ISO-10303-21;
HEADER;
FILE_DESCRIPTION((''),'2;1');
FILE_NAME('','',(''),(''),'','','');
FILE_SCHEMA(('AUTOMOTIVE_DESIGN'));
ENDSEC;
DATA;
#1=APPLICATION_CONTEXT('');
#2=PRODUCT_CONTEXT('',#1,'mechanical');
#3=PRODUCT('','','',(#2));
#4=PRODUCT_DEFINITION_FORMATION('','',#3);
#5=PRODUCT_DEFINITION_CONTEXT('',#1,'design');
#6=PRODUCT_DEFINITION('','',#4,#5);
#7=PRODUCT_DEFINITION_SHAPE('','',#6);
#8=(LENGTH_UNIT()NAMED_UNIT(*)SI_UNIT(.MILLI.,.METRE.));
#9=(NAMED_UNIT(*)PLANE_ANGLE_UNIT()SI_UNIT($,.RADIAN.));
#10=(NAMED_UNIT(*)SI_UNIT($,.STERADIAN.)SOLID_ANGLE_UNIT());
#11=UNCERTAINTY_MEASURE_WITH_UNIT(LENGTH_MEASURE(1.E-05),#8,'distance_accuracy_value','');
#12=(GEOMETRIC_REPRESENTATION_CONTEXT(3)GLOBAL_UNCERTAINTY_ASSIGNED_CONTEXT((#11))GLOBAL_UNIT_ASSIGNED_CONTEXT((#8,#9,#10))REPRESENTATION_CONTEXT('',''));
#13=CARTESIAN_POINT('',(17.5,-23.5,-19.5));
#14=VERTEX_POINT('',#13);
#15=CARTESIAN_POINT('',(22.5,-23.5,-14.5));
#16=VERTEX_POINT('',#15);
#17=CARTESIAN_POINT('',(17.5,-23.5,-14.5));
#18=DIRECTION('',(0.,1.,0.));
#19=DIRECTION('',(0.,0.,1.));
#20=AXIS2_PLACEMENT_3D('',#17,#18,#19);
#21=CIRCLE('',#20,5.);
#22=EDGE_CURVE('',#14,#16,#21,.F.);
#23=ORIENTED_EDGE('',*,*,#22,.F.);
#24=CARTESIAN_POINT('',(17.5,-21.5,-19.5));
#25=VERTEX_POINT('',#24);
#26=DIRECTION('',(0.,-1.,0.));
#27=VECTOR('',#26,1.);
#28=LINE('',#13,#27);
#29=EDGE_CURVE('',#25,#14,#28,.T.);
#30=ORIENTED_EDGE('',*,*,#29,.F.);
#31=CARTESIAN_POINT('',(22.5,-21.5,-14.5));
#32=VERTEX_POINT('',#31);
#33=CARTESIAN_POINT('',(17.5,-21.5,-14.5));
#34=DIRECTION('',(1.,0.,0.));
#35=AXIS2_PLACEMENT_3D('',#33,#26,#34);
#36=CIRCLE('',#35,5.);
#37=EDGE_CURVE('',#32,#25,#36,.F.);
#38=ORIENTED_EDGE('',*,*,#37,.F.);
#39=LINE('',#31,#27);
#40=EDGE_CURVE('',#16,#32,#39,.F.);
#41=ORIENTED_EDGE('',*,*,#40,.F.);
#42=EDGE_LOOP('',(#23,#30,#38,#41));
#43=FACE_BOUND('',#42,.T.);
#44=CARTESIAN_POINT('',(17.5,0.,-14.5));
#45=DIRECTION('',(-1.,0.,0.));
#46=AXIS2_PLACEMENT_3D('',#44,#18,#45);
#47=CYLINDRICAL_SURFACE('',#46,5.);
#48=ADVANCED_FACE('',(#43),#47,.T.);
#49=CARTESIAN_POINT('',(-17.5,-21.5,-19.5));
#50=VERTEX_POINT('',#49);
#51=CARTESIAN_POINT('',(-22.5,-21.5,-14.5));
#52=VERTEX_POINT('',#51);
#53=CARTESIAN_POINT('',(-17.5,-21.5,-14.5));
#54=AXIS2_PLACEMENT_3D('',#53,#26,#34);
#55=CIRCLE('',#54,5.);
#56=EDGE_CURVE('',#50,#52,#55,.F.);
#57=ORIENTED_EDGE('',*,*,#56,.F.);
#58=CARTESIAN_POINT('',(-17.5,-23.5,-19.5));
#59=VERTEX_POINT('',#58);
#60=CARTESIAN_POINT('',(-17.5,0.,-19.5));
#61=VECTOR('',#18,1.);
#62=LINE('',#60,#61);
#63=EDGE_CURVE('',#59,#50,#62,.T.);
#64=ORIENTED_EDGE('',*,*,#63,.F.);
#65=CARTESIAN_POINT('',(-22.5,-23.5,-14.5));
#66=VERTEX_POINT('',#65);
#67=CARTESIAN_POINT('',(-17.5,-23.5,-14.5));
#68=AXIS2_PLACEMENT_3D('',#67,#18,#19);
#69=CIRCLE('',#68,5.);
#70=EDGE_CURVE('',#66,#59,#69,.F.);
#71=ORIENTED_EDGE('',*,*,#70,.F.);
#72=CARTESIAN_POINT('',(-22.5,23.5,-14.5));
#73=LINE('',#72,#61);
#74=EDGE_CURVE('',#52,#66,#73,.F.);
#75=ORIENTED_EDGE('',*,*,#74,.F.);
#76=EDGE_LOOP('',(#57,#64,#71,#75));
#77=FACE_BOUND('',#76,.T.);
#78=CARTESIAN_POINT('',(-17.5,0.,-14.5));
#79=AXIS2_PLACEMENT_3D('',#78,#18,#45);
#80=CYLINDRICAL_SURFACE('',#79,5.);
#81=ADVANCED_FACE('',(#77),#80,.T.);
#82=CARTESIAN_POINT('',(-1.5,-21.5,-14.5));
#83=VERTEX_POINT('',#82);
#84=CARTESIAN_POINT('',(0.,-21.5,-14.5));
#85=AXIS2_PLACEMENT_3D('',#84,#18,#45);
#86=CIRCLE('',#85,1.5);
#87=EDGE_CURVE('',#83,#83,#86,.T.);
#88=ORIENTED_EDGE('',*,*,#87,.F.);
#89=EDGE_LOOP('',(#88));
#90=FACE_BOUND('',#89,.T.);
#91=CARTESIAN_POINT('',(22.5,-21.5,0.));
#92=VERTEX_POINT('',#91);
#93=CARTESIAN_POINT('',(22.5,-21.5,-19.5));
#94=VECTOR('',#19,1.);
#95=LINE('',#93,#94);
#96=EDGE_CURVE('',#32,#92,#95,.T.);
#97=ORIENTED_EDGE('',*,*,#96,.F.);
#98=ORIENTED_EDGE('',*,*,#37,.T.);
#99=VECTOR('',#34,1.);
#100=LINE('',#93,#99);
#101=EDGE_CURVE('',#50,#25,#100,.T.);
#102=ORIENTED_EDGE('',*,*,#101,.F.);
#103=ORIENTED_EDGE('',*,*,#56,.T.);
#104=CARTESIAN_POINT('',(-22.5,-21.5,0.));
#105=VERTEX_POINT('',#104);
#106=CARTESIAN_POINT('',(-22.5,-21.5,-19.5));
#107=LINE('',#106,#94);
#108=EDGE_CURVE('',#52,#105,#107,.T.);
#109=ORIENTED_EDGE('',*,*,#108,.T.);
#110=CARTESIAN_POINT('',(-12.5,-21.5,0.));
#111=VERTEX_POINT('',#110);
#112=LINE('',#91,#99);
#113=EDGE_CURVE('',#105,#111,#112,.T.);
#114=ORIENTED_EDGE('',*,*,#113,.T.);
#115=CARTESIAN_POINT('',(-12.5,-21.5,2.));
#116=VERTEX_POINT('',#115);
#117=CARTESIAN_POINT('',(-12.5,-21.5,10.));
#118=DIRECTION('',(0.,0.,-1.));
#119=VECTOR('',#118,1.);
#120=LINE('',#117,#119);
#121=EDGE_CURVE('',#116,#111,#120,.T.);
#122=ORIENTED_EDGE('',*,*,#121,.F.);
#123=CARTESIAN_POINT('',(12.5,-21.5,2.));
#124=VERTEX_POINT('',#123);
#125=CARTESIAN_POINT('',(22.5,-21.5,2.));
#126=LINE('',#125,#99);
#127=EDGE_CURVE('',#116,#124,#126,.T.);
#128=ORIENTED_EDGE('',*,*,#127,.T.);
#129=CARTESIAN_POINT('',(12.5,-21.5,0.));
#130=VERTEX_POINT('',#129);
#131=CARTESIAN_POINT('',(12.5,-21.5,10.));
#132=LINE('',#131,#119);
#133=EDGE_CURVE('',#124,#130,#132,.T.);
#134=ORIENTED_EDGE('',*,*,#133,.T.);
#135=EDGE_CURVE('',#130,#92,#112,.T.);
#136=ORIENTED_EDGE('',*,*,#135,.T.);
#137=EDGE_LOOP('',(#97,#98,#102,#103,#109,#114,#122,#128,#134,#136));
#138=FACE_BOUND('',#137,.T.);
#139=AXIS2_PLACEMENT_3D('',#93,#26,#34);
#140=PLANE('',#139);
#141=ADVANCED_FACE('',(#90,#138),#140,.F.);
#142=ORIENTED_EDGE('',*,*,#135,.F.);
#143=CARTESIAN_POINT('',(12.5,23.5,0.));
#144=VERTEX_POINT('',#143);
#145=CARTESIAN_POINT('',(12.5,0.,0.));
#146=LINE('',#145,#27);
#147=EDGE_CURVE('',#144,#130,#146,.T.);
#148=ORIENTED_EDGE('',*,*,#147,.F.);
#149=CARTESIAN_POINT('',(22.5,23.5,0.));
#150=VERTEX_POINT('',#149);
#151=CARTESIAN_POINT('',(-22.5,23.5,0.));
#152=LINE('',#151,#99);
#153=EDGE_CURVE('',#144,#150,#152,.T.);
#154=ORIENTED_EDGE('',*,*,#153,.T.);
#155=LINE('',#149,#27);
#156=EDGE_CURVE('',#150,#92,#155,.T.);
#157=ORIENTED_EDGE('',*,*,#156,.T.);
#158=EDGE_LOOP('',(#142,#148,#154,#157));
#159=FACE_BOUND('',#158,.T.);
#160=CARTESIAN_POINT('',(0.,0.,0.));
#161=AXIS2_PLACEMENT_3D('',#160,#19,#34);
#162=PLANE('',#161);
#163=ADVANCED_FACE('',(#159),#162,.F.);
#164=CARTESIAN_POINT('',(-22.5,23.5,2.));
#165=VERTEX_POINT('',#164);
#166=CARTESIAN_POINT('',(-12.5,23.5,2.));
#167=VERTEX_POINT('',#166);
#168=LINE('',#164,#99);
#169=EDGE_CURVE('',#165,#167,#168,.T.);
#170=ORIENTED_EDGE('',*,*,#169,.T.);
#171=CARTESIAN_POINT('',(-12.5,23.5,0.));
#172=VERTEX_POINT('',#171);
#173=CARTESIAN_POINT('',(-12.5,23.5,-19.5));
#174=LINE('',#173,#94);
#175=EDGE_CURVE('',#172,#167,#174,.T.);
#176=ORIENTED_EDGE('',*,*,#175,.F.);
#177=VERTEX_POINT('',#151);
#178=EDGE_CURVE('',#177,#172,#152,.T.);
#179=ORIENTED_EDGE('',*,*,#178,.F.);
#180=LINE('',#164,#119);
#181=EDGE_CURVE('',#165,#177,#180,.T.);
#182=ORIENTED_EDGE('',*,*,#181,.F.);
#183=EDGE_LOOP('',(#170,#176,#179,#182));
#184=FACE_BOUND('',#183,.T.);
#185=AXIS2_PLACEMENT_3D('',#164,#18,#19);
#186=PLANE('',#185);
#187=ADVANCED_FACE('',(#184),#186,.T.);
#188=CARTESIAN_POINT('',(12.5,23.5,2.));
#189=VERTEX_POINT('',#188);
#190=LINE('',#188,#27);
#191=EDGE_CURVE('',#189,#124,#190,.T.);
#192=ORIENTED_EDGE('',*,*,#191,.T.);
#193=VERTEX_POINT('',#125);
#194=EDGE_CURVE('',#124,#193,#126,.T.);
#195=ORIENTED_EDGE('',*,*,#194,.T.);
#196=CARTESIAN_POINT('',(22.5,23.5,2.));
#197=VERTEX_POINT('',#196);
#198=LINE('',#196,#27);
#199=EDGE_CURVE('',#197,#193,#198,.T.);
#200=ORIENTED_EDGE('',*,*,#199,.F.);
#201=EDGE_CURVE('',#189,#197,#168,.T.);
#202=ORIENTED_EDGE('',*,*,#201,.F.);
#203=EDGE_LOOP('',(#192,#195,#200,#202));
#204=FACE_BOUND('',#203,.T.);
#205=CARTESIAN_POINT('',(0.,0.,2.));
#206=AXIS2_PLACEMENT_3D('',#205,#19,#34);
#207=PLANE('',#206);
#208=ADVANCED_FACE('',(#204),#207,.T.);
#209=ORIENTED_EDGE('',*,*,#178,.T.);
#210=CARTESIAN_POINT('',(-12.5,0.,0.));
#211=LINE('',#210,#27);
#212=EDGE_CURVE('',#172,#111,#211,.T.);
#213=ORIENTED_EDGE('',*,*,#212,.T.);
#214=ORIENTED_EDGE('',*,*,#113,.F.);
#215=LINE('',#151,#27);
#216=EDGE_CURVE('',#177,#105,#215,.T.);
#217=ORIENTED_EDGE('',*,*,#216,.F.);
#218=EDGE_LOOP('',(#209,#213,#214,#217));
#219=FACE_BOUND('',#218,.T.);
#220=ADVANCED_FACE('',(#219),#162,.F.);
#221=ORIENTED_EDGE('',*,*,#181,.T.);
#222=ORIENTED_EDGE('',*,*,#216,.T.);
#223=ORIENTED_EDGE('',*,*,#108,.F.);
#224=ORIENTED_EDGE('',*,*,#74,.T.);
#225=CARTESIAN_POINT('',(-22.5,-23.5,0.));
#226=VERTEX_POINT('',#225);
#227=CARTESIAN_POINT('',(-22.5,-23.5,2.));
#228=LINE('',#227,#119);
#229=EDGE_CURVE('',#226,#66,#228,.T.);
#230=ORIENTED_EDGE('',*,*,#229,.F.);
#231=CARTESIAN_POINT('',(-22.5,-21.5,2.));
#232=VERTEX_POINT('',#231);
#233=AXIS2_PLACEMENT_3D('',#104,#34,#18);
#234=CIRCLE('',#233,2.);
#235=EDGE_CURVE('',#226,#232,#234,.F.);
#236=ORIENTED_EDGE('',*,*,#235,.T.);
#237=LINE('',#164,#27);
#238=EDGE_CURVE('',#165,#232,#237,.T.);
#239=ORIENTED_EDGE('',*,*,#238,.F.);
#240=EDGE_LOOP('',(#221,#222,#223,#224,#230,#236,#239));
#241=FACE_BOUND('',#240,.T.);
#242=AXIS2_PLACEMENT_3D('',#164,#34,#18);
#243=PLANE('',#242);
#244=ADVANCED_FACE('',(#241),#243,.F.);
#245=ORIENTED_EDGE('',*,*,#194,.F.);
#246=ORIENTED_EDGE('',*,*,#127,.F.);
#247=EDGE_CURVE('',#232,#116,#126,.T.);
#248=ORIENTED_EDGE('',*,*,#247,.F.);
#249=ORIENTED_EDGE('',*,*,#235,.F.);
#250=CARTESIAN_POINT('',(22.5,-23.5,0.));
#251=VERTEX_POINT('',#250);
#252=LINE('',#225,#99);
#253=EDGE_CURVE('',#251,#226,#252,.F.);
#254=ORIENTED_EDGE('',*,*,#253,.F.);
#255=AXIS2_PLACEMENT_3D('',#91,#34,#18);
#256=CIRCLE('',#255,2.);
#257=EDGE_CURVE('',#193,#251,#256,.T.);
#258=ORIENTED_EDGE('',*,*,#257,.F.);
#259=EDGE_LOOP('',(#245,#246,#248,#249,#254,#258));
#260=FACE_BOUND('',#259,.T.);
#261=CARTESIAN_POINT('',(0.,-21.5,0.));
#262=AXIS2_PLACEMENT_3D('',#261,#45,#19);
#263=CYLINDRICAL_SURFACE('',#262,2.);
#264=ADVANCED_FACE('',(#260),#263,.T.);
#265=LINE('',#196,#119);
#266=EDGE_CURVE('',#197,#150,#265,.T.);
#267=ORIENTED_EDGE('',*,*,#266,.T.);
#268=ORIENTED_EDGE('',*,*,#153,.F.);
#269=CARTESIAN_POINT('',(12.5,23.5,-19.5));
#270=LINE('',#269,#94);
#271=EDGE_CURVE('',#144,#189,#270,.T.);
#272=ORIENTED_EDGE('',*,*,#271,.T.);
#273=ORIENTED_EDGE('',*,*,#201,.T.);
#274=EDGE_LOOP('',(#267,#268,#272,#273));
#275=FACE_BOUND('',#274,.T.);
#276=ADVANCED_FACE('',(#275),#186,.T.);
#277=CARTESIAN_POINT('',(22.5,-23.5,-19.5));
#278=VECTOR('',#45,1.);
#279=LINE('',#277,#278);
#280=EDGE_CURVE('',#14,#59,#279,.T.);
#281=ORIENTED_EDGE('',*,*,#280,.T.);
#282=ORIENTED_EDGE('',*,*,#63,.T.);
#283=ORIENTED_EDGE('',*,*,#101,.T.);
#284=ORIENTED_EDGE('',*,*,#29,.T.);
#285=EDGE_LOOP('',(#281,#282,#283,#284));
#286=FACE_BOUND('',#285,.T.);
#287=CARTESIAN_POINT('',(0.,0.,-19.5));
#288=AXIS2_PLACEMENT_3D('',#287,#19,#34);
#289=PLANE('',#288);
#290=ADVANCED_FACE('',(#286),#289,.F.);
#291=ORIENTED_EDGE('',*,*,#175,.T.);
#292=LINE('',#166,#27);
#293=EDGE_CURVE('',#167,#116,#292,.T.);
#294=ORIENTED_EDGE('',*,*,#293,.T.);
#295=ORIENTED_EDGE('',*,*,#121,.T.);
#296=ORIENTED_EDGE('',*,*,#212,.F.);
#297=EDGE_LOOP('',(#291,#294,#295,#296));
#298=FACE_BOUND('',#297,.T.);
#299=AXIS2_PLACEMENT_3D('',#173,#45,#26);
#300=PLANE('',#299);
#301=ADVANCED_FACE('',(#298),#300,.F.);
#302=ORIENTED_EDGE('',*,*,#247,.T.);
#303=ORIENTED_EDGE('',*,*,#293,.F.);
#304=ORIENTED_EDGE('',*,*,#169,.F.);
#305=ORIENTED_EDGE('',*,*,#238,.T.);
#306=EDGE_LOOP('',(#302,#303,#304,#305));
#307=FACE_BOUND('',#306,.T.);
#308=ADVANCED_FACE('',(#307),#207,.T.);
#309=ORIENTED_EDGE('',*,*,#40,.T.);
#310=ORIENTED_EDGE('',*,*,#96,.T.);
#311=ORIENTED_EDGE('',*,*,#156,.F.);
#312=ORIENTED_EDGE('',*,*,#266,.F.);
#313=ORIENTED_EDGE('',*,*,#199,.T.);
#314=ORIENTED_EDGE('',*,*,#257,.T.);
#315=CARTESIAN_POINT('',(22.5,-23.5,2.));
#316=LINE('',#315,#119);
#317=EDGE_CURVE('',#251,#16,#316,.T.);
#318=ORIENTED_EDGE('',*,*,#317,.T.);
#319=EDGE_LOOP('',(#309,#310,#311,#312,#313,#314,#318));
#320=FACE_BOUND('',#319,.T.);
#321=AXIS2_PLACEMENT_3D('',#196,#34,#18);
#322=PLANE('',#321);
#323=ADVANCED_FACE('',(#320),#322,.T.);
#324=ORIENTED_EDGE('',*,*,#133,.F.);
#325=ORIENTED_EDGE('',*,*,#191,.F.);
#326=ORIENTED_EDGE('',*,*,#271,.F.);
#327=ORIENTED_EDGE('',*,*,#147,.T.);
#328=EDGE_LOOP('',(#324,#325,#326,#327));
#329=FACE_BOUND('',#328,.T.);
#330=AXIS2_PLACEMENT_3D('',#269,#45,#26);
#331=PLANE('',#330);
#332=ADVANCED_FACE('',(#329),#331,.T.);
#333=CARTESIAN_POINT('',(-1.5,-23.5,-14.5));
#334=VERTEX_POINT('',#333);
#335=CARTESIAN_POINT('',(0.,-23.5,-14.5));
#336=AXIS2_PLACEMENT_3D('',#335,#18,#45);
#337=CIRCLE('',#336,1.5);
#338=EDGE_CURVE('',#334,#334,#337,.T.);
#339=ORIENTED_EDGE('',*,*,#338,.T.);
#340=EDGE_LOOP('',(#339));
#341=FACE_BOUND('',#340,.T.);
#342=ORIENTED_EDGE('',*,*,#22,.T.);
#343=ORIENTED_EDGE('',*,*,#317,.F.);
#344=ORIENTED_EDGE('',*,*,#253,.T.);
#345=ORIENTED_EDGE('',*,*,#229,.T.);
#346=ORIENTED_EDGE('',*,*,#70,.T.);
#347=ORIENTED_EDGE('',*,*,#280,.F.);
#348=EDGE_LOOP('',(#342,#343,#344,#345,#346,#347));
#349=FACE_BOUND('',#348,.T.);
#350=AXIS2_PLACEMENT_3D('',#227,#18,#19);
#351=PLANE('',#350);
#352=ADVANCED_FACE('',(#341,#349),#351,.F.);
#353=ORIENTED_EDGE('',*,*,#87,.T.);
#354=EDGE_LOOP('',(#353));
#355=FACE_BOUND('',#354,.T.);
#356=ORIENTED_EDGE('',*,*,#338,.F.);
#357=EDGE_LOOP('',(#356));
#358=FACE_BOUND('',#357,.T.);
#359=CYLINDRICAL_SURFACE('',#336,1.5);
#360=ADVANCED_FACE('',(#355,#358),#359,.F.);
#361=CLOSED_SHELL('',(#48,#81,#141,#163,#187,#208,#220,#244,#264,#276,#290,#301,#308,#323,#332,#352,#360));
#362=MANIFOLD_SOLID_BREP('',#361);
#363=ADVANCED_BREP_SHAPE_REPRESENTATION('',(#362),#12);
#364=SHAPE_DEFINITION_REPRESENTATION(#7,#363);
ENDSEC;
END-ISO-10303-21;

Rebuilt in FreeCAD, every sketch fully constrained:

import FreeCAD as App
import Part
import Sketcher

V = App.Vector


def edges_at(feature, points):
    """Names of the edges that pass closest to the given points."""
    edges = feature.Shape.Edges
    near = lambda p: min(range(len(edges)), key=lambda i: edges[i].distToShape(Part.Vertex(*p))[0])
    return sorted({f"Edge{near(p) + 1}" for p in points})

doc = App.newDocument("Part")
body = doc.addObject("PartDesign::Body", "Body")

# Sketch on XY plane
sketch1 = body.newObject("Sketcher::SketchObject", "Sketch")
sketch1.AttachmentSupport = (doc.getObject("XY_Plane"), [""])
sketch1.MapMode = "FlatFace"
sketch1.addGeometry(Part.LineSegment(V(-22, 24, 0), V(-22, -24, 0)), False)
sketch1.addGeometry(Part.LineSegment(V(-22, -24, 0), V(22, -24, 0)), False)
sketch1.addGeometry(Part.LineSegment(V(22, -24, 0), V(22, 24, 0)), False)
sketch1.addGeometry(Part.LineSegment(V(22, 24, 0), V(-22, 24, 0)), False)
sketch1.addConstraint(Sketcher.Constraint("Coincident", 0, 2, 1, 1))
sketch1.addConstraint(Sketcher.Constraint("Coincident", 1, 2, 2, 1))
sketch1.addConstraint(Sketcher.Constraint("Coincident", 2, 2, 3, 1))
sketch1.addConstraint(Sketcher.Constraint("Coincident", 3, 2, 0, 1))
sketch1.addConstraint(Sketcher.Constraint("Vertical", 0))
sketch1.addConstraint(Sketcher.Constraint("Horizontal", 1))
sketch1.addConstraint(Sketcher.Constraint("Vertical", 2))
sketch1.addConstraint(Sketcher.Constraint("Horizontal", 3))
sketch1.addConstraint(Sketcher.Constraint("Symmetric", 0, 2, 2, 2, -1, 1))
sketch1.addConstraint(Sketcher.Constraint("DistanceX", 1, 1, 1, 2, 45.0))
sketch1.addConstraint(Sketcher.Constraint("DistanceY", 0, 2, 0, 1, 47.0))
pad1 = body.newObject("PartDesign::Pad", "Pad")
pad1.Profile = sketch1
pad1.Length = 2

# Sketch on XY plane
sketch2 = body.newObject("Sketcher::SketchObject", "Sketch001")
sketch2.AttachmentSupport = (doc.getObject("XY_Plane"), [""])
sketch2.MapMode = "FlatFace"
sketch2.addGeometry(Part.LineSegment(V(22.5, -21.5, 0), V(22.5, -23.5, 0)), False)
sketch2.addGeometry(Part.LineSegment(V(22.5, -23.5, 0), V(-22.5, -23.5, 0)), False)
sketch2.addGeometry(Part.LineSegment(V(-22.5, -23.5, 0), V(-22.5, -21.5, 0)), False)
sketch2.addGeometry(Part.LineSegment(V(-22.5, -21.5, 0), V(22.5, -21.5, 0)), False)
sketch2.addConstraint(Sketcher.Constraint("Coincident", 0, 2, 1, 1))
sketch2.addConstraint(Sketcher.Constraint("Coincident", 1, 2, 2, 1))
sketch2.addConstraint(Sketcher.Constraint("Coincident", 2, 2, 3, 1))
sketch2.addConstraint(Sketcher.Constraint("Coincident", 3, 2, 0, 1))
sketch2.addConstraint(Sketcher.Constraint("Vertical", 0))
sketch2.addConstraint(Sketcher.Constraint("Horizontal", 1))
sketch2.addConstraint(Sketcher.Constraint("Vertical", 2))
sketch2.addConstraint(Sketcher.Constraint("Horizontal", 3))
sketch2.addConstraint(Sketcher.Constraint("DistanceX", 1, 2, 1, 1, 45.0))
sketch2.addConstraint(Sketcher.Constraint("DistanceY", 0, 2, 0, 1, 2.0))
sketch2.addConstraint(Sketcher.Constraint("DistanceX", -1, 1, 0, 2, 22.5))
sketch2.addConstraint(Sketcher.Constraint("DistanceY", 0, 2, -1, 1, 23.5))
pad2 = body.newObject("PartDesign::Pad", "Pad001")
pad2.Profile = sketch2
pad2.Length = 19.5
pad2.Reversed = True
doc.recompute()

fillet = body.newObject("PartDesign::Fillet", "Fillet")
fillet.Base = (pad2, edges_at(pad2, [(0, -23.5, 2)]))
fillet.Radius = 2
doc.recompute()

fillet2 = body.newObject("PartDesign::Fillet", "Fillet001")
fillet2.Base = (fillet, edges_at(fillet, [(22.5, -22.5, -19.5), (-22.5, -22.5, -19.5)]))
fillet2.Radius = 5

# Sketch on XY plane
sketch3 = body.newObject("Sketcher::SketchObject", "Sketch002")
sketch3.AttachmentSupport = (doc.getObject("XY_Plane"), [""])
sketch3.MapMode = "FlatFace"
sketch3.AttachmentOffset = App.Placement(V(0, 0, 2), App.Rotation())
sketch3.addGeometry(Part.LineSegment(V(-12, 24, 0), V(-12, 1, 0)), False)
sketch3.addGeometry(Part.LineSegment(V(-12, 1, 0), V(12, 1, 0)), False)
sketch3.addGeometry(Part.LineSegment(V(12, 1, 0), V(12, 24, 0)), False)
sketch3.addGeometry(Part.LineSegment(V(12, 24, 0), V(-12, 24, 0)), False)
sketch3.addConstraint(Sketcher.Constraint("Coincident", 0, 2, 1, 1))
sketch3.addConstraint(Sketcher.Constraint("Coincident", 1, 2, 2, 1))
sketch3.addConstraint(Sketcher.Constraint("Coincident", 2, 2, 3, 1))
sketch3.addConstraint(Sketcher.Constraint("Coincident", 3, 2, 0, 1))
sketch3.addConstraint(Sketcher.Constraint("Vertical", 0))
sketch3.addConstraint(Sketcher.Constraint("Horizontal", 1))
sketch3.addConstraint(Sketcher.Constraint("Vertical", 2))
sketch3.addConstraint(Sketcher.Constraint("Horizontal", 3))
sketch3.addConstraint(Sketcher.Constraint("DistanceX", 1, 1, 1, 2, 25.0))
sketch3.addConstraint(Sketcher.Constraint("DistanceY", 0, 2, 0, 1, 22.5))
sketch3.addConstraint(Sketcher.Constraint("DistanceY", -1, 1, 0, 2, 1.0))
sketch3.addConstraint(Sketcher.Constraint("DistanceX", 0, 2, -1, 1, 12.5))
pocket1 = body.newObject("PartDesign::Pocket", "Pocket")
pocket1.Profile = sketch3
pocket1.Type = "ThroughAll"

# Sketch on XZ plane
sketch4 = body.newObject("Sketcher::SketchObject", "Sketch003")
sketch4.AttachmentSupport = (doc.getObject("XZ_Plane"), [""])
sketch4.MapMode = "FlatFace"
sketch4.AttachmentOffset = App.Placement(V(0, 0, 21.5), App.Rotation())
sketch4.addGeometry(Part.Circle(V(0, -14.5, 0), V(0, 0, 1), 1.5), False)
sketch4.addConstraint(Sketcher.Constraint("PointOnObject", 0, 3, -2))
sketch4.addConstraint(Sketcher.Constraint("Diameter", 0, 3.0))
sketch4.addConstraint(Sketcher.Constraint("DistanceY", 0, 3, -1, 1, 14.5))
pocket2 = body.newObject("PartDesign::Pocket", "Pocket001")
pocket2.Profile = sketch4
pocket2.Type = "ThroughAll"
pocket2.Reversed = True

# Sketch on XY plane
sketch5 = body.newObject("Sketcher::SketchObject", "Sketch004")
sketch5.AttachmentSupport = (doc.getObject("XY_Plane"), [""])
sketch5.MapMode = "FlatFace"
sketch5.addGeometry(Part.LineSegment(V(12, 1, 0), V(12, -22, 0)), False)
sketch5.addGeometry(Part.LineSegment(V(12, -22, 0), V(-12, -22, 0)), False)
sketch5.addGeometry(Part.LineSegment(V(-12, -22, 0), V(-12, 1, 0)), False)
sketch5.addGeometry(Part.LineSegment(V(-12, 1, 0), V(12, 1, 0)), False)
sketch5.addConstraint(Sketcher.Constraint("Coincident", 0, 2, 1, 1))
sketch5.addConstraint(Sketcher.Constraint("Coincident", 1, 2, 2, 1))
sketch5.addConstraint(Sketcher.Constraint("Coincident", 2, 2, 3, 1))
sketch5.addConstraint(Sketcher.Constraint("Coincident", 3, 2, 0, 1))
sketch5.addConstraint(Sketcher.Constraint("Vertical", 0))
sketch5.addConstraint(Sketcher.Constraint("Horizontal", 1))
sketch5.addConstraint(Sketcher.Constraint("Vertical", 2))
sketch5.addConstraint(Sketcher.Constraint("Horizontal", 3))
sketch5.addConstraint(Sketcher.Constraint("DistanceX", 1, 2, 1, 1, 25.0))
sketch5.addConstraint(Sketcher.Constraint("DistanceY", 0, 2, 0, 1, 22.5))
sketch5.addConstraint(Sketcher.Constraint("DistanceY", -1, 1, 2, 2, 1.0))
sketch5.addConstraint(Sketcher.Constraint("DistanceX", -1, 1, 0, 2, 12.5))
pocket3 = body.newObject("PartDesign::Pocket", "Pocket002")
pocket3.Profile = sketch5
pocket3.Length = 10
pocket3.Reversed = True

doc.recompute()
